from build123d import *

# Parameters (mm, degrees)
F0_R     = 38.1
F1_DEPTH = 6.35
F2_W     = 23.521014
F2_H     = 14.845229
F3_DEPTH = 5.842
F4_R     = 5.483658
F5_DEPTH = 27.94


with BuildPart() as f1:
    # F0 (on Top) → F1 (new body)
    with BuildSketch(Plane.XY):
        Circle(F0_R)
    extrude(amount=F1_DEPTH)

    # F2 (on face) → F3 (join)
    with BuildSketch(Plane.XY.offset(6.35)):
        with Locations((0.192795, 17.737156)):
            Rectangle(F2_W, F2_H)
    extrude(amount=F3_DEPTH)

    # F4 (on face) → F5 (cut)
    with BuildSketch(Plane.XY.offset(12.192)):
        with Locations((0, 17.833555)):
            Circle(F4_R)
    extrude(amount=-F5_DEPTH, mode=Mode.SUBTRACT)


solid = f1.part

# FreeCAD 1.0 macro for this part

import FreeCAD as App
import Part
import Sketcher

V = App.Vector
Q = App.Units.Quantity

doc = App.newDocument("Part")
body = doc.addObject("PartDesign::Body", "Body")

# Sketch on XY plane
sketch1 = doc.addObject("Sketcher::SketchObject", "Sketch")
body.addObject(sketch1)
sketch1.AttachmentSupport = (doc.XY_Plane, [""])
sketch1.MapMode = "FlatFace"
sketch1.addGeometry(Part.Circle(V(0, 0, 0), V(0, 0, 1), 38), False)
sketch1.addConstraint([
    Sketcher.Constraint("Coincident", 0, 3, -1, 1),
    Sketcher.Constraint("Diameter", 0, Q("3 in")),
])
pad1 = doc.addObject("PartDesign::Pad", "Pad")
body.addObject(pad1)
pad1.Profile = sketch1
pad1.Length = Q("0.25 in")

# Sketch on XY plane
sketch2 = doc.addObject("Sketcher::SketchObject", "Sketch001")
body.addObject(sketch2)
sketch2.AttachmentSupport = (doc.XY_Plane, [""])
sketch2.MapMode = "FlatFace"
sketch2.AttachmentOffset = App.Placement(V(0, 0, 0.25 * 25.4), App.Rotation())
sketch2.addGeometry([
    Part.LineSegment(V(-12, 25, 0), V(-12, 10, 0)),
    Part.LineSegment(V(-12, 10, 0), V(12, 10, 0)),
    Part.LineSegment(V(12, 10, 0), V(12, 25, 0)),
    Part.LineSegment(V(12, 25, 0), V(-12, 25, 0)),
], False)
sketch2.addConstraint([
    Sketcher.Constraint("Coincident", 0, 2, 1, 1),
    Sketcher.Constraint("Coincident", 1, 2, 2, 1),
    Sketcher.Constraint("Coincident", 2, 2, 3, 1),
    Sketcher.Constraint("Coincident", 3, 2, 0, 1),
    Sketcher.Constraint("Vertical", 0),
    Sketcher.Constraint("Horizontal", 1),
    Sketcher.Constraint("Vertical", 2),
    Sketcher.Constraint("Horizontal", 3),
    Sketcher.Constraint("DistanceY", 0, 2, 0, 1, 14.845229),
    Sketcher.Constraint("DistanceX", 1, 1, 1, 2, 23.521014),
    Sketcher.Constraint("DistanceY", -1, 1, 0, 2, 10.314542),
    Sketcher.Constraint("DistanceX", 0, 2, -1, 1, 11.567712),
])
pad2 = doc.addObject("PartDesign::Pad", "Pad001")
body.addObject(pad2)
pad2.Profile = sketch2
pad2.Length = Q("0.23 in")

# Sketch on XY plane
sketch3 = doc.addObject("Sketcher::SketchObject", "Sketch002")
body.addObject(sketch3)
sketch3.AttachmentSupport = (doc.XY_Plane, [""])
sketch3.MapMode = "FlatFace"
sketch3.AttachmentOffset = App.Placement(V(0, 0, 0.48 * 25.4), App.Rotation())
sketch3.addGeometry(Part.Circle(V(0, 18, 0), V(0, 0, 1), 5), False)
sketch3.addConstraint([
    Sketcher.Constraint("PointOnObject", 0, 3, -2),
    Sketcher.Constraint("Diameter", 0, 10.967316),
    Sketcher.Constraint("DistanceY", -1, 1, 0, 3, 17.833555),
])
pocket1 = doc.addObject("PartDesign::Pocket", "Pocket")
body.addObject(pocket1)
pocket1.Profile = sketch3
pocket1.Length = Q("1.1 in")

doc.recompute()
